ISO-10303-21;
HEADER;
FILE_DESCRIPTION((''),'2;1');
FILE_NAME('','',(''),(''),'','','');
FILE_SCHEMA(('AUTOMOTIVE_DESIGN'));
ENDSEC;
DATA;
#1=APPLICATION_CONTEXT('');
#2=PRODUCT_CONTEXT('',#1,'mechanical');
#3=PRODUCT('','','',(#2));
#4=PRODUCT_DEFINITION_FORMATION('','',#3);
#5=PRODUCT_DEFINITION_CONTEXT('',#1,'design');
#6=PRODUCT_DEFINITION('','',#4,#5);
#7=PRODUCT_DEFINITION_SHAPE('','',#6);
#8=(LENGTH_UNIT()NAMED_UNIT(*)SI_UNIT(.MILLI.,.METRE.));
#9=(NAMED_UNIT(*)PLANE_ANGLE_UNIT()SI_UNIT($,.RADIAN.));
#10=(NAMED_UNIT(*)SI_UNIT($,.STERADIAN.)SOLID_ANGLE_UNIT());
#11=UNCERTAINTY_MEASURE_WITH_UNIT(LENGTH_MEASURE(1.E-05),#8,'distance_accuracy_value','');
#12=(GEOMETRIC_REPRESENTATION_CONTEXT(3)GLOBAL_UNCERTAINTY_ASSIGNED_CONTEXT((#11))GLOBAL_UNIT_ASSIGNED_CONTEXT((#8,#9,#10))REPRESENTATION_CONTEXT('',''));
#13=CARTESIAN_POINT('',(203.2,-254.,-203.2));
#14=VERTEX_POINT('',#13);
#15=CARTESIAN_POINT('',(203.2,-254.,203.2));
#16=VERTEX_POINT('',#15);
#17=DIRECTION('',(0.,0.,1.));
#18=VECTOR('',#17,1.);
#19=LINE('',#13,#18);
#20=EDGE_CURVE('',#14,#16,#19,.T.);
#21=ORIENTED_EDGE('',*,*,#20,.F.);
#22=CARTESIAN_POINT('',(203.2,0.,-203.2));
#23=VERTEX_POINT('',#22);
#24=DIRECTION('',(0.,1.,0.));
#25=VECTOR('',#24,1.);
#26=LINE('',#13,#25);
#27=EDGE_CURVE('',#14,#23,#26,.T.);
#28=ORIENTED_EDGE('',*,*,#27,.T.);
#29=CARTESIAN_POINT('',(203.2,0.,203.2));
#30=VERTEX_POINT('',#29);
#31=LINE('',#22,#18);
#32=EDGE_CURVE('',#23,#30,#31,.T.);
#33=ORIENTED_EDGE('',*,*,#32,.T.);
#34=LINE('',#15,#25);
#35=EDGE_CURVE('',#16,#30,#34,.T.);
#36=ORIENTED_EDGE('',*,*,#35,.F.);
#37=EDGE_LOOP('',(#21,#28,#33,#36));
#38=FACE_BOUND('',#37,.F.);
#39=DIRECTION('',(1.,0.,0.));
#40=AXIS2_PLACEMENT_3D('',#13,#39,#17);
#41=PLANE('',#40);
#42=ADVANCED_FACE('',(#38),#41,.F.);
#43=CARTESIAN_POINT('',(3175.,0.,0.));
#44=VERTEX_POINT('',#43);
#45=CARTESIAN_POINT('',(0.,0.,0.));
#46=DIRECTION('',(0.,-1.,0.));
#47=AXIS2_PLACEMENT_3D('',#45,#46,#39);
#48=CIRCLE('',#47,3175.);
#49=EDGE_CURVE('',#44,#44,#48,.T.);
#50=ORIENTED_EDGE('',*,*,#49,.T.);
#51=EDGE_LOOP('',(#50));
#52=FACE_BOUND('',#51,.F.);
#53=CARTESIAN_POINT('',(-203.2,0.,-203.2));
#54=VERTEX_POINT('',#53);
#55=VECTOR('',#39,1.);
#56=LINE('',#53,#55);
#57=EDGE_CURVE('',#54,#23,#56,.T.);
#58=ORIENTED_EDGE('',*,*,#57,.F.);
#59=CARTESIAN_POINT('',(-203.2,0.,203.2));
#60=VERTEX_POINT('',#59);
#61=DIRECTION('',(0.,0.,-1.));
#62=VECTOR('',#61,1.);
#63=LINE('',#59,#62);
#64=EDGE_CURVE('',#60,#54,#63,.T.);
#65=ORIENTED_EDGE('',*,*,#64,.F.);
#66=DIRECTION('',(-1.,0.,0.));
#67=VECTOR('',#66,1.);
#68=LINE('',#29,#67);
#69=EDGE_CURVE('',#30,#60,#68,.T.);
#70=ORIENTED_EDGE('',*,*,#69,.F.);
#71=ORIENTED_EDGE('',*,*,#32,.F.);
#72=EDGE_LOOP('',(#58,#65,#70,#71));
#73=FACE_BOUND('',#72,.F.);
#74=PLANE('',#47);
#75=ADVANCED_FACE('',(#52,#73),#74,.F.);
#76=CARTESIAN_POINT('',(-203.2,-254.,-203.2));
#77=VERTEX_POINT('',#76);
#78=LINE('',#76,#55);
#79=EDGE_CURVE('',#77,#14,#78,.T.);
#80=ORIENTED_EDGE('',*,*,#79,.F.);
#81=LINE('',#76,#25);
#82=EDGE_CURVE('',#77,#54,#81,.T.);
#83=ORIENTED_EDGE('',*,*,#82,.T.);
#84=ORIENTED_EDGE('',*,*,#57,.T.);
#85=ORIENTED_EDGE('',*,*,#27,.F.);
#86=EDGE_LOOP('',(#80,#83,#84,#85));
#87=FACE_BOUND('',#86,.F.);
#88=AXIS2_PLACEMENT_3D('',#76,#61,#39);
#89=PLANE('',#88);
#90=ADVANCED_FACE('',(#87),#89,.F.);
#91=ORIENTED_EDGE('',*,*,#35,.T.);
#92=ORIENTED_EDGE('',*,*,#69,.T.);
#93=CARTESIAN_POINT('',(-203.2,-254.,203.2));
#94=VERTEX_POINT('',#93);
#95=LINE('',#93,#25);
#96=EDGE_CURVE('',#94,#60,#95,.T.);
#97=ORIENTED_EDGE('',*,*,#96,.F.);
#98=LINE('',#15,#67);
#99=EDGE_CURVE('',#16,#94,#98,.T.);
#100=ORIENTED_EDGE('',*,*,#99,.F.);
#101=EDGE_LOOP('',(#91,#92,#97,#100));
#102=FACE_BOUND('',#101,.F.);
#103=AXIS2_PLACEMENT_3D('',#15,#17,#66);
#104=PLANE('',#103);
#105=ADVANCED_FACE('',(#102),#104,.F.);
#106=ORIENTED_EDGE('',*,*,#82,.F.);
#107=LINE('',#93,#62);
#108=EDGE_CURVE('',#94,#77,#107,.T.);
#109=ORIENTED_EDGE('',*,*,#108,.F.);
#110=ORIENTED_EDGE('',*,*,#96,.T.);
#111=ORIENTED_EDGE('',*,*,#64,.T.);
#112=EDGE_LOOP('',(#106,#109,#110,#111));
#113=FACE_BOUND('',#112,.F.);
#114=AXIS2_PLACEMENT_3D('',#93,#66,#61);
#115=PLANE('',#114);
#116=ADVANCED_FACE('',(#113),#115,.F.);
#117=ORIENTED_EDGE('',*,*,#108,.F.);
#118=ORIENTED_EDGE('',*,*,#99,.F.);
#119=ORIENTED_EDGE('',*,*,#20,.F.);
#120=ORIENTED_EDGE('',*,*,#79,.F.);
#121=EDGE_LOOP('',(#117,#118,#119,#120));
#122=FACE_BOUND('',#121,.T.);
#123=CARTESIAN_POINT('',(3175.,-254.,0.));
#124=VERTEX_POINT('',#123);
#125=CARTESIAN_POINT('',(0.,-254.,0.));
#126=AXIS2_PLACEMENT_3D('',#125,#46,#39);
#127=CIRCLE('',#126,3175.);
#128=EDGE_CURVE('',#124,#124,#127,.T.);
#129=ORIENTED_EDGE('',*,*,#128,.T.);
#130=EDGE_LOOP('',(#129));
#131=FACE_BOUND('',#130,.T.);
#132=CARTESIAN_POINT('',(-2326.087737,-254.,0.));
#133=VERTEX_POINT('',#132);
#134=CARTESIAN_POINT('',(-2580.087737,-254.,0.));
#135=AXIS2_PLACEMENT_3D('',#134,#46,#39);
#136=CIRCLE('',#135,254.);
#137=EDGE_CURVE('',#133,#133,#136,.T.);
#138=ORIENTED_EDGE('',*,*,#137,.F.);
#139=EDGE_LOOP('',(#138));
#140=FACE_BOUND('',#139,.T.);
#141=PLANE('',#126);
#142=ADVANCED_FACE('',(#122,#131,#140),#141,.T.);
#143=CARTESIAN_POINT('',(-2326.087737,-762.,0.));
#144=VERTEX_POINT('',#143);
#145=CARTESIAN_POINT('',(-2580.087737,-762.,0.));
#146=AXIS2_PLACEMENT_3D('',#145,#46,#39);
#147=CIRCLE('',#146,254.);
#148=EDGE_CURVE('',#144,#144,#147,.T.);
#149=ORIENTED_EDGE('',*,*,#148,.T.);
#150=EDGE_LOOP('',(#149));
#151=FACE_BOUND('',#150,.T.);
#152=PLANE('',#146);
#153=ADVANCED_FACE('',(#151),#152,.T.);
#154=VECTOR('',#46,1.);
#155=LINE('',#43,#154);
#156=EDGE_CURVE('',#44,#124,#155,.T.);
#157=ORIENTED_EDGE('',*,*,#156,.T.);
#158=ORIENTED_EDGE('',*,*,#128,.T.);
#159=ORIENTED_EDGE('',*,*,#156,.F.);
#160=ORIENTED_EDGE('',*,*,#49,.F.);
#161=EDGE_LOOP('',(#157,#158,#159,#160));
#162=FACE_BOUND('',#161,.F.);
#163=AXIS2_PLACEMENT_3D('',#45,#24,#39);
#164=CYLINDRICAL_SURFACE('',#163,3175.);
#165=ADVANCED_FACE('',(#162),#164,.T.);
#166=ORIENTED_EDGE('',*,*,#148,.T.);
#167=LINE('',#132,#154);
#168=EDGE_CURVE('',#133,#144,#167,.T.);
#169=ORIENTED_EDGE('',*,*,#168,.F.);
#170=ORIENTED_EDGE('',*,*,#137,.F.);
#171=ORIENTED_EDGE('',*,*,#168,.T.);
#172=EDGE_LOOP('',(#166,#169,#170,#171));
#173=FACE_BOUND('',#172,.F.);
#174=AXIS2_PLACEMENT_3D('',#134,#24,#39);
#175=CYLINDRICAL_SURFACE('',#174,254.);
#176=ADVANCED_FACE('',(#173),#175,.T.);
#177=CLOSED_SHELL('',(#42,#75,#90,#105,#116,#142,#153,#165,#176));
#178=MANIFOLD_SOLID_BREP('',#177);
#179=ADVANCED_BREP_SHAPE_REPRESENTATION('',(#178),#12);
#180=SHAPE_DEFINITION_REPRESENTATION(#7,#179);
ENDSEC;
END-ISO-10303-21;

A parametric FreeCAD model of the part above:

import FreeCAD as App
import Part
import Sketcher
from FreeCAD import Vector
Q = App.Units.Quantity


def add_polygon(sketch, points):
    """Adds a closed chain of lines whose ends are joined by coincident constraints."""
    first, n = sketch.GeometryCount, len(points)
    for a, b in zip(points, points[1:] + points[:1]):
        sketch.addGeometry(Part.LineSegment(App.Vector(*a, 0), App.Vector(*b, 0)), False)
    for i in range(n):
        sketch.addConstraint(Sketcher.Constraint("Coincident", first + i, 2, first + (i + 1) % n, 1))

doc = App.newDocument("Part")
body = doc.addObject("PartDesign::Body", "Body")

# Sketch on XZ plane
sketch1 = body.newObject("Sketcher::SketchObject", "Sketch")
sketch1.AttachmentSupport = (doc.getObject("XZ_Plane"), [""])
sketch1.MapMode = "FlatFace"
sketch1.addGeometry(Part.Circle(Vector(0, 0, 0), Vector(0, 0, 1), 3175), False)
sketch1.addConstraint(Sketcher.Constraint("Coincident", 0, 3, -1, 1))
sketch1.addConstraint(Sketcher.Constraint("Diameter", 0, Q("250 in")))
pad1 = body.newObject("PartDesign::Pad", "Pad")
pad1.Profile = sketch1
pad1.Length = Q("10 in")

# Sketch on XZ plane
sketch2 = body.newObject("Sketcher::SketchObject", "Sketch001")
sketch2.AttachmentSupport = (doc.getObject("XZ_Plane"), [""])
sketch2.MapMode = "FlatFace"
sketch2.AttachmentOffset = App.Placement(Vector(0, 0, 10 * 25.4), App.Rotation())
sketch2.addGeometry(Part.Circle(Vector(-2580, 0, 0), Vector(0, 0, 1), 254), False)
sketch2.addConstraint(Sketcher.Constraint("PointOnObject", 0, 3, -1))
sketch2.addConstraint(Sketcher.Constraint("Diameter", 0, Q("20 in")))
sketch2.addConstraint(Sketcher.Constraint("DistanceX", 0, 3, -1, 1, 2580.087737))
pad2 = body.newObject("PartDesign::Pad", "Pad001")
pad2.Profile = sketch2
pad2.Length = Q("20 in")

# Sketch on XZ plane
sketch3 = body.newObject("Sketcher::SketchObject", "Sketch002")
sketch3.AttachmentSupport = (doc.getObject("XZ_Plane"), [""])
sketch3.MapMode = "FlatFace"
sketch3.AttachmentOffset = App.Placement(Vector(0, 0, 10 * 25.4), App.Rotation())
add_polygon(sketch3, [(203, 203), (-203, 203), (-203, -203), (203, -203)])  # lines 0-3
sketch3.addConstraint(Sketcher.Constraint("Horizontal", 0))
sketch3.addConstraint(Sketcher.Constraint("Vertical", 1))
sketch3.addConstraint(Sketcher.Constraint("Horizontal", 2))
sketch3.addConstraint(Sketcher.Constraint("Vertical", 3))
sketch3.addConstraint(Sketcher.Constraint("Symmetric", 0, 2, 2, 2, -1, 1))
sketch3.addConstraint(Sketcher.Constraint("Equal", 2, 1))
sketch3.addConstraint(Sketcher.Constraint("DistanceX", 0, 2, 0, 1, Q("16 in")))
pocket1 = body.newObject("PartDesign::Pocket", "Pocket")
pocket1.Profile = sketch3
pocket1.Length = Q("10 in")

doc.recompute()
